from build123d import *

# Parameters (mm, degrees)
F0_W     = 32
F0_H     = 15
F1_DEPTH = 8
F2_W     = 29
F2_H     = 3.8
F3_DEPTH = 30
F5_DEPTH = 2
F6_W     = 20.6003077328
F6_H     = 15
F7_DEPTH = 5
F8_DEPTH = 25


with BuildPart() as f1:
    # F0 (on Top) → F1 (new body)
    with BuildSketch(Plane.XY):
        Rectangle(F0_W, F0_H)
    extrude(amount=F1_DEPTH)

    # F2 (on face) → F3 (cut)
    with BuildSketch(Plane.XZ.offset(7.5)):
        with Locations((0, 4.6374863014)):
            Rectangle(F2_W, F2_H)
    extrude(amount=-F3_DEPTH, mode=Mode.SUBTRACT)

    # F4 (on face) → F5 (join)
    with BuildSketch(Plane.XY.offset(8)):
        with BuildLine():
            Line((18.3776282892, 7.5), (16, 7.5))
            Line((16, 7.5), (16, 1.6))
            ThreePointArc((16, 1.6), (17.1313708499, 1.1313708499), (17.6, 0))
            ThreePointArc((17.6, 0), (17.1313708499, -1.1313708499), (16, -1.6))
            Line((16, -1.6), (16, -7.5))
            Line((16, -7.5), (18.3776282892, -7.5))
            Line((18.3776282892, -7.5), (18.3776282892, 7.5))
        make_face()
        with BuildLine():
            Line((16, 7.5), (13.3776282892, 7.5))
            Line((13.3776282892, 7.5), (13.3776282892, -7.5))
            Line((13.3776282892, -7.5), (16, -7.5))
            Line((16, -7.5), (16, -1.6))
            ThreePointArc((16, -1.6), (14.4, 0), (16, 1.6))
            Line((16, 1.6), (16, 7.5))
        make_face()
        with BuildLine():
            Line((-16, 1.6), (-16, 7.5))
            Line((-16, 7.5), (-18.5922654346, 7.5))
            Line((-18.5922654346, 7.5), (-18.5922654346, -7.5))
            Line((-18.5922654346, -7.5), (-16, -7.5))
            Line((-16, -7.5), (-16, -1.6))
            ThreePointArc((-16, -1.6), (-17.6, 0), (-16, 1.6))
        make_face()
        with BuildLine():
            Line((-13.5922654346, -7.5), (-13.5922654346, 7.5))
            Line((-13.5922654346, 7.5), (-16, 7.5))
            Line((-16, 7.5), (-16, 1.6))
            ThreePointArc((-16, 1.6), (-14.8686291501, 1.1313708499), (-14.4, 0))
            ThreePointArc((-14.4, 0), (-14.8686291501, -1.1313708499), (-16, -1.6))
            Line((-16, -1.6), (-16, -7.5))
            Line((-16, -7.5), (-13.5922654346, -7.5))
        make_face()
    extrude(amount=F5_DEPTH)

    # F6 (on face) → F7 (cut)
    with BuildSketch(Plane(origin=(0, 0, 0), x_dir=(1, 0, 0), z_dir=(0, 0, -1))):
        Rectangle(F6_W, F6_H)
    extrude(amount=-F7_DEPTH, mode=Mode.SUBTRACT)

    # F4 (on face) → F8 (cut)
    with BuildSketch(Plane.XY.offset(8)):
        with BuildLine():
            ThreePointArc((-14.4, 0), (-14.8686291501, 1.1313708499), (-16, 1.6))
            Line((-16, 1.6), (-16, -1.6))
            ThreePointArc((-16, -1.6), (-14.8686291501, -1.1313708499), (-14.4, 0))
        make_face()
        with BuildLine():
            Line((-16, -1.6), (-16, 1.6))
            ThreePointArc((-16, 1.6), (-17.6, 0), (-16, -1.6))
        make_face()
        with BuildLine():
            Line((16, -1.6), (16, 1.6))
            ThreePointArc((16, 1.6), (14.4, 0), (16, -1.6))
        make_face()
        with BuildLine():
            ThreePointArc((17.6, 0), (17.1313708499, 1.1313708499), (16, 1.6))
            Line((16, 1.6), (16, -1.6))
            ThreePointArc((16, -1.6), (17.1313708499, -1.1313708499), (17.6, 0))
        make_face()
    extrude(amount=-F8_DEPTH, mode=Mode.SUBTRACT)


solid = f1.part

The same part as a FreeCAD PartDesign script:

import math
import FreeCAD as App
import Part
import Sketcher

V = App.Vector

doc = App.newDocument("Part")
body = doc.addObject("PartDesign::Body", "Body")

# Sketch on XY plane
sketch1 = body.newObject("Sketcher::SketchObject", "Sketch")
sketch1.AttachmentSupport = (doc.getObject("XY_Plane"), [""])
sketch1.MapMode = "FlatFace"
sketch1.addGeometry([
    Part.LineSegment(V(-16, 8, 0), V(-16, -8, 0)),
    Part.LineSegment(V(-16, -8, 0), V(16, -8, 0)),
    Part.LineSegment(V(16, -8, 0), V(16, 8, 0)),
    Part.LineSegment(V(16, 8, 0), V(-16, 8, 0)),
], False)
sketch1.addConstraint([
    Sketcher.Constraint("Coincident", 0, 2, 1, 1),
    Sketcher.Constraint("Coincident", 1, 2, 2, 1),
    Sketcher.Constraint("Coincident", 2, 2, 3, 1),
    Sketcher.Constraint("Coincident", 3, 2, 0, 1),
    Sketcher.Constraint("Vertical", 0),
    Sketcher.Constraint("Horizontal", 1),
    Sketcher.Constraint("Vertical", 2),
    Sketcher.Constraint("Horizontal", 3),
    Sketcher.Constraint("Symmetric", 0, 2, 2, 2, -1, 1),
    Sketcher.Constraint("DistanceX", 1, 1, 1, 2, 32.0),
    Sketcher.Constraint("DistanceY", 0, 2, 0, 1, 15.0),
])
pad1 = body.newObject("PartDesign::Pad", "Pad")
pad1.Profile = sketch1
pad1.Length = 8

# Sketch on XZ plane
sketch2 = body.newObject("Sketcher::SketchObject", "Sketch001")
sketch2.AttachmentSupport = (doc.getObject("XZ_Plane"), [""])
sketch2.MapMode = "FlatFace"
sketch2.AttachmentOffset = App.Placement(V(0, 0, 7.5), App.Rotation())
sketch2.addGeometry([
    Part.LineSegment(V(-14.5, 6.5, 0), V(-14.5, 2.7, 0)),
    Part.LineSegment(V(-14.5, 2.7, 0), V(14.5, 2.7, 0)),
    Part.LineSegment(V(14.5, 2.7, 0), V(14.5, 6.5, 0)),
    Part.LineSegment(V(14.5, 6.5, 0), V(-14.5, 6.5, 0)),
], False)
sketch2.addConstraint([
    Sketcher.Constraint("Coincident", 0, 2, 1, 1),
    Sketcher.Constraint("Coincident", 1, 2, 2, 1),
    Sketcher.Constraint("Coincident", 2, 2, 3, 1),
    Sketcher.Constraint("Coincident", 3, 2, 0, 1),
    Sketcher.Constraint("Vertical", 0),
    Sketcher.Constraint("Horizontal", 1),
    Sketcher.Constraint("Vertical", 2),
    Sketcher.Constraint("Horizontal", 3),
    Sketcher.Constraint("DistanceX", 1, 1, 1, 2, 29.0),
    Sketcher.Constraint("DistanceY", 0, 2, 0, 1, 3.8),
    Sketcher.Constraint("DistanceX", 0, 2, -1, 1, 14.5),
    Sketcher.Constraint("DistanceY", -1, 1, 0, 2, 2.737486),
])
pocket1 = body.newObject("PartDesign::Pocket", "Pocket")
pocket1.Profile = sketch2
pocket1.Length = 30

# Sketch on XY plane
sketch3 = body.newObject("Sketcher::SketchObject", "Sketch002")
sketch3.AttachmentSupport = (doc.getObject("XY_Plane"), [""])
sketch3.MapMode = "FlatFace"
sketch3.AttachmentOffset = App.Placement(V(0, 0, 8), App.Rotation())
sketch3.addGeometry([
    Part.LineSegment(V(18.4, 7.5, 0), V(13.4, 7.5, 0)),  # 0
    Part.LineSegment(V(13.4, 7.5, 0), V(13.4, -7.5, 0)),  # 1
    Part.LineSegment(V(13.4, -7.5, 0), V(18.4, -7.5, 0)),  # 2
    Part.LineSegment(V(18.4, -7.5, 0), V(18.4, 7.5, 0)),  # 3
    Part.ArcOfCircle(Part.Circle(V(16, 0, 0), V(0, 0, 1), 1.6), math.radians(0), math.radians(90)),  # 4
    Part.ArcOfCircle(Part.Circle(V(16, 0, 0), V(0, 0, 1), 1.6), math.radians(-90), math.radians(0)),  # 5
    Part.ArcOfCircle(Part.Circle(V(16, 0, 0), V(0, 0, 1), 1.6), math.radians(90), math.radians(270)),  # 6
    Part.LineSegment(V(-18.6, 7.5, 0), V(-18.6, -7.5, 0)),  # 7
    Part.LineSegment(V(-18.6, -7.5, 0), V(-13.6, -7.5, 0)),  # 8
    Part.LineSegment(V(-13.6, -7.5, 0), V(-13.6, 7.5, 0)),  # 9
    Part.LineSegment(V(-13.6, 7.5, 0), V(-18.6, 7.5, 0)),  # 10
    Part.ArcOfCircle(Part.Circle(V(-16, 0, 0), V(0, 0, 1), 1.6), math.radians(90), math.radians(270)),  # 11
    Part.ArcOfCircle(Part.Circle(V(-16, 0, 0), V(0, 0, 1), 1.6), math.radians(0), math.radians(90)),  # 12
    Part.ArcOfCircle(Part.Circle(V(-16, 0, 0), V(0, 0, 1), 1.6), math.radians(-90), math.radians(0)),  # 13
], False)
sketch3.addConstraint([
    Sketcher.Constraint("Coincident", 0, 2, 1, 1),
    Sketcher.Constraint("Coincident", 1, 2, 2, 1),
    Sketcher.Constraint("Coincident", 2, 2, 3, 1),
    Sketcher.Constraint("Coincident", 3, 2, 0, 1),
    Sketcher.Constraint("Tangent", 4, 1, 5, 2),
    Sketcher.Constraint("Tangent", 5, 1, 6, 2),
    Sketcher.Constraint("Tangent", 6, 1, 4, 2),
    Sketcher.Constraint("Coincident", 7, 2, 8, 1),
    Sketcher.Constraint("Coincident", 8, 2, 9, 1),
    Sketcher.Constraint("Coincident", 9, 2, 10, 1),
    Sketcher.Constraint("Coincident", 10, 2, 7, 1),
    Sketcher.Constraint("Tangent", 11, 1, 12, 2),
    Sketcher.Constraint("Tangent", 12, 1, 13, 2),
    Sketcher.Constraint("Tangent", 13, 1, 11, 2),
    Sketcher.Constraint("Horizontal", 0),
    Sketcher.Constraint("Vertical", 1),
    Sketcher.Constraint("Horizontal", 2),
    Sketcher.Constraint("Vertical", 3),
    Sketcher.Constraint("Vertical", 7),
    Sketcher.Constraint("Horizontal", 8),
    Sketcher.Constraint("Vertical", 9),
    Sketcher.Constraint("Horizontal", 10),
    Sketcher.Constraint("Equal", 6, 11),
    Sketcher.Constraint("Symmetric", 4, 3, 11, 3, -1, 1),
    Sketcher.Constraint("Symmetric", 6, 1, 11, 1, -2),
    Sketcher.Constraint("PointOnObject", 4, 1, -1),
    Sketcher.Constraint("PointOnObject", 12, 1, -1),
    Sketcher.Constraint("Horizontal", 2, 2, 7, 2),
    Sketcher.Constraint("Horizontal", 3, 2, 9, 2),
    Sketcher.Constraint("Vertical", 6, 3, 5, 1),
    Sketcher.Constraint("Vertical", 5, 1, 6, 1),
    Sketcher.Constraint("Vertical", 11, 1, 13, 1),
    Sketcher.Constraint("Equal", 2, 8),
    Sketcher.Constraint("Radius", 4, 1.6),
    Sketcher.Constraint("DistanceX", 0, 2, 0, 1, 5.0),
    Sketcher.Constraint("DistanceY", 1, 2, 1, 1, 15.0),
    Sketcher.Constraint("DistanceX", -1, 1, 4, 3, 16.0),
    Sketcher.Constraint("DistanceY", -1, 1, 0, 2, 7.5),
    Sketcher.Constraint("DistanceX", -1, 1, 0, 2, 13.377628),
    Sketcher.Constraint("DistanceX", 7, 2, -1, 1, 18.592265),
])
pad2 = body.newObject("PartDesign::Pad", "Pad001")
pad2.Profile = sketch3
pad2.Length = 2

# Sketch on XY plane
sketch4 = body.newObject("Sketcher::SketchObject", "Sketch003")
sketch4.AttachmentSupport = (doc.getObject("XY_Plane"), [""])
sketch4.MapMode = "FlatFace"
sketch4.addGeometry([
    Part.LineSegment(V(-10, -8, 0), V(-10, 8, 0)),
    Part.LineSegment(V(-10, 8, 0), V(10, 8, 0)),
    Part.LineSegment(V(10, 8, 0), V(10, -8, 0)),
    Part.LineSegment(V(10, -8, 0), V(-10, -8, 0)),
], False)
sketch4.addConstraint([
    Sketcher.Constraint("Coincident", 0, 2, 1, 1),
    Sketcher.Constraint("Coincident", 1, 2, 2, 1),
    Sketcher.Constraint("Coincident", 2, 2, 3, 1),
    Sketcher.Constraint("Coincident", 3, 2, 0, 1),
    Sketcher.Constraint("Vertical", 0),
    Sketcher.Constraint("Horizontal", 1),
    Sketcher.Constraint("Vertical", 2),
    Sketcher.Constraint("Horizontal", 3),
    Sketcher.Constraint("Symmetric", 0, 2, 2, 2, -1, 1),
    Sketcher.Constraint("DistanceY", 0, 1, 0, 2, 15.0),
    Sketcher.Constraint("DistanceX", 1, 1, 1, 2, 20.600308),
])
pocket2 = body.newObject("PartDesign::Pocket", "Pocket001")
pocket2.Profile = sketch4
pocket2.Length = 5
pocket2.Reversed = True

# Sketch on XY plane
sketch5 = body.newObject("Sketcher::SketchObject", "Sketch004")
sketch5.AttachmentSupport = (doc.getObject("XY_Plane"), [""])
sketch5.MapMode = "FlatFace"
sketch5.AttachmentOffset = App.Placement(V(0, 0, 8), App.Rotation())
sketch5.addGeometry([
    Part.ArcOfCircle(Part.Circle(V(-16, 0, 0), V(0, 0, 1), 1.6), math.radians(0), math.radians(90)),  # 0
    Part.ArcOfCircle(Part.Circle(V(-16, 0, 0), V(0, 0, 1), 1.6), math.radians(90), math.radians(270)),  # 1
    Part.ArcOfCircle(Part.Circle(V(-16, 0, 0), V(0, 0, 1), 1.6), math.radians(-90), math.radians(0)),  # 2
    Part.ArcOfCircle(Part.Circle(V(16, 0, 0), V(0, 0, 1), 1.6), math.radians(90), math.radians(270)),  # 3
    Part.ArcOfCircle(Part.Circle(V(16, 0, 0), V(0, 0, 1), 1.6), math.radians(-90), math.radians(0)),  # 4
    Part.ArcOfCircle(Part.Circle(V(16, 0, 0), V(0, 0, 1), 1.6), math.radians(0), math.radians(90)),  # 5
], False)
sketch5.addConstraint([
    Sketcher.Constraint("Tangent", 0, 2, 1, 1),
    Sketcher.Constraint("Tangent", 1, 2, 2, 1),
    Sketcher.Constraint("Tangent", 2, 2, 0, 1),
    Sketcher.Constraint("Tangent", 3, 2, 4, 1),
    Sketcher.Constraint("Tangent", 4, 2, 5, 1),
    Sketcher.Constraint("Tangent", 5, 2, 3, 1),
    Sketcher.Constraint("Equal", 2, 3),
    Sketcher.Constraint("Symmetric", 0, 3, 3, 3, -1, 1),
    Sketcher.Constraint("Symmetric", 1, 2, 3, 2, -2),
    Sketcher.Constraint("PointOnObject", 2, 2, -1),
    Sketcher.Constraint("PointOnObject", 4, 2, -1),
    Sketcher.Constraint("Vertical", 2, 3, 0, 2),
    Sketcher.Constraint("Vertical", 0, 2, 1, 2),
    Sketcher.Constraint("Vertical", 3, 2, 5, 2),
    Sketcher.Constraint("Radius", 0, 1.6),
    Sketcher.Constraint("DistanceX", 0, 3, -1, 1, 16.0),
])
pocket3 = body.newObject("PartDesign::Pocket", "Pocket002")
pocket3.Profile = sketch5
pocket3.Length = 25

doc.recompute()
